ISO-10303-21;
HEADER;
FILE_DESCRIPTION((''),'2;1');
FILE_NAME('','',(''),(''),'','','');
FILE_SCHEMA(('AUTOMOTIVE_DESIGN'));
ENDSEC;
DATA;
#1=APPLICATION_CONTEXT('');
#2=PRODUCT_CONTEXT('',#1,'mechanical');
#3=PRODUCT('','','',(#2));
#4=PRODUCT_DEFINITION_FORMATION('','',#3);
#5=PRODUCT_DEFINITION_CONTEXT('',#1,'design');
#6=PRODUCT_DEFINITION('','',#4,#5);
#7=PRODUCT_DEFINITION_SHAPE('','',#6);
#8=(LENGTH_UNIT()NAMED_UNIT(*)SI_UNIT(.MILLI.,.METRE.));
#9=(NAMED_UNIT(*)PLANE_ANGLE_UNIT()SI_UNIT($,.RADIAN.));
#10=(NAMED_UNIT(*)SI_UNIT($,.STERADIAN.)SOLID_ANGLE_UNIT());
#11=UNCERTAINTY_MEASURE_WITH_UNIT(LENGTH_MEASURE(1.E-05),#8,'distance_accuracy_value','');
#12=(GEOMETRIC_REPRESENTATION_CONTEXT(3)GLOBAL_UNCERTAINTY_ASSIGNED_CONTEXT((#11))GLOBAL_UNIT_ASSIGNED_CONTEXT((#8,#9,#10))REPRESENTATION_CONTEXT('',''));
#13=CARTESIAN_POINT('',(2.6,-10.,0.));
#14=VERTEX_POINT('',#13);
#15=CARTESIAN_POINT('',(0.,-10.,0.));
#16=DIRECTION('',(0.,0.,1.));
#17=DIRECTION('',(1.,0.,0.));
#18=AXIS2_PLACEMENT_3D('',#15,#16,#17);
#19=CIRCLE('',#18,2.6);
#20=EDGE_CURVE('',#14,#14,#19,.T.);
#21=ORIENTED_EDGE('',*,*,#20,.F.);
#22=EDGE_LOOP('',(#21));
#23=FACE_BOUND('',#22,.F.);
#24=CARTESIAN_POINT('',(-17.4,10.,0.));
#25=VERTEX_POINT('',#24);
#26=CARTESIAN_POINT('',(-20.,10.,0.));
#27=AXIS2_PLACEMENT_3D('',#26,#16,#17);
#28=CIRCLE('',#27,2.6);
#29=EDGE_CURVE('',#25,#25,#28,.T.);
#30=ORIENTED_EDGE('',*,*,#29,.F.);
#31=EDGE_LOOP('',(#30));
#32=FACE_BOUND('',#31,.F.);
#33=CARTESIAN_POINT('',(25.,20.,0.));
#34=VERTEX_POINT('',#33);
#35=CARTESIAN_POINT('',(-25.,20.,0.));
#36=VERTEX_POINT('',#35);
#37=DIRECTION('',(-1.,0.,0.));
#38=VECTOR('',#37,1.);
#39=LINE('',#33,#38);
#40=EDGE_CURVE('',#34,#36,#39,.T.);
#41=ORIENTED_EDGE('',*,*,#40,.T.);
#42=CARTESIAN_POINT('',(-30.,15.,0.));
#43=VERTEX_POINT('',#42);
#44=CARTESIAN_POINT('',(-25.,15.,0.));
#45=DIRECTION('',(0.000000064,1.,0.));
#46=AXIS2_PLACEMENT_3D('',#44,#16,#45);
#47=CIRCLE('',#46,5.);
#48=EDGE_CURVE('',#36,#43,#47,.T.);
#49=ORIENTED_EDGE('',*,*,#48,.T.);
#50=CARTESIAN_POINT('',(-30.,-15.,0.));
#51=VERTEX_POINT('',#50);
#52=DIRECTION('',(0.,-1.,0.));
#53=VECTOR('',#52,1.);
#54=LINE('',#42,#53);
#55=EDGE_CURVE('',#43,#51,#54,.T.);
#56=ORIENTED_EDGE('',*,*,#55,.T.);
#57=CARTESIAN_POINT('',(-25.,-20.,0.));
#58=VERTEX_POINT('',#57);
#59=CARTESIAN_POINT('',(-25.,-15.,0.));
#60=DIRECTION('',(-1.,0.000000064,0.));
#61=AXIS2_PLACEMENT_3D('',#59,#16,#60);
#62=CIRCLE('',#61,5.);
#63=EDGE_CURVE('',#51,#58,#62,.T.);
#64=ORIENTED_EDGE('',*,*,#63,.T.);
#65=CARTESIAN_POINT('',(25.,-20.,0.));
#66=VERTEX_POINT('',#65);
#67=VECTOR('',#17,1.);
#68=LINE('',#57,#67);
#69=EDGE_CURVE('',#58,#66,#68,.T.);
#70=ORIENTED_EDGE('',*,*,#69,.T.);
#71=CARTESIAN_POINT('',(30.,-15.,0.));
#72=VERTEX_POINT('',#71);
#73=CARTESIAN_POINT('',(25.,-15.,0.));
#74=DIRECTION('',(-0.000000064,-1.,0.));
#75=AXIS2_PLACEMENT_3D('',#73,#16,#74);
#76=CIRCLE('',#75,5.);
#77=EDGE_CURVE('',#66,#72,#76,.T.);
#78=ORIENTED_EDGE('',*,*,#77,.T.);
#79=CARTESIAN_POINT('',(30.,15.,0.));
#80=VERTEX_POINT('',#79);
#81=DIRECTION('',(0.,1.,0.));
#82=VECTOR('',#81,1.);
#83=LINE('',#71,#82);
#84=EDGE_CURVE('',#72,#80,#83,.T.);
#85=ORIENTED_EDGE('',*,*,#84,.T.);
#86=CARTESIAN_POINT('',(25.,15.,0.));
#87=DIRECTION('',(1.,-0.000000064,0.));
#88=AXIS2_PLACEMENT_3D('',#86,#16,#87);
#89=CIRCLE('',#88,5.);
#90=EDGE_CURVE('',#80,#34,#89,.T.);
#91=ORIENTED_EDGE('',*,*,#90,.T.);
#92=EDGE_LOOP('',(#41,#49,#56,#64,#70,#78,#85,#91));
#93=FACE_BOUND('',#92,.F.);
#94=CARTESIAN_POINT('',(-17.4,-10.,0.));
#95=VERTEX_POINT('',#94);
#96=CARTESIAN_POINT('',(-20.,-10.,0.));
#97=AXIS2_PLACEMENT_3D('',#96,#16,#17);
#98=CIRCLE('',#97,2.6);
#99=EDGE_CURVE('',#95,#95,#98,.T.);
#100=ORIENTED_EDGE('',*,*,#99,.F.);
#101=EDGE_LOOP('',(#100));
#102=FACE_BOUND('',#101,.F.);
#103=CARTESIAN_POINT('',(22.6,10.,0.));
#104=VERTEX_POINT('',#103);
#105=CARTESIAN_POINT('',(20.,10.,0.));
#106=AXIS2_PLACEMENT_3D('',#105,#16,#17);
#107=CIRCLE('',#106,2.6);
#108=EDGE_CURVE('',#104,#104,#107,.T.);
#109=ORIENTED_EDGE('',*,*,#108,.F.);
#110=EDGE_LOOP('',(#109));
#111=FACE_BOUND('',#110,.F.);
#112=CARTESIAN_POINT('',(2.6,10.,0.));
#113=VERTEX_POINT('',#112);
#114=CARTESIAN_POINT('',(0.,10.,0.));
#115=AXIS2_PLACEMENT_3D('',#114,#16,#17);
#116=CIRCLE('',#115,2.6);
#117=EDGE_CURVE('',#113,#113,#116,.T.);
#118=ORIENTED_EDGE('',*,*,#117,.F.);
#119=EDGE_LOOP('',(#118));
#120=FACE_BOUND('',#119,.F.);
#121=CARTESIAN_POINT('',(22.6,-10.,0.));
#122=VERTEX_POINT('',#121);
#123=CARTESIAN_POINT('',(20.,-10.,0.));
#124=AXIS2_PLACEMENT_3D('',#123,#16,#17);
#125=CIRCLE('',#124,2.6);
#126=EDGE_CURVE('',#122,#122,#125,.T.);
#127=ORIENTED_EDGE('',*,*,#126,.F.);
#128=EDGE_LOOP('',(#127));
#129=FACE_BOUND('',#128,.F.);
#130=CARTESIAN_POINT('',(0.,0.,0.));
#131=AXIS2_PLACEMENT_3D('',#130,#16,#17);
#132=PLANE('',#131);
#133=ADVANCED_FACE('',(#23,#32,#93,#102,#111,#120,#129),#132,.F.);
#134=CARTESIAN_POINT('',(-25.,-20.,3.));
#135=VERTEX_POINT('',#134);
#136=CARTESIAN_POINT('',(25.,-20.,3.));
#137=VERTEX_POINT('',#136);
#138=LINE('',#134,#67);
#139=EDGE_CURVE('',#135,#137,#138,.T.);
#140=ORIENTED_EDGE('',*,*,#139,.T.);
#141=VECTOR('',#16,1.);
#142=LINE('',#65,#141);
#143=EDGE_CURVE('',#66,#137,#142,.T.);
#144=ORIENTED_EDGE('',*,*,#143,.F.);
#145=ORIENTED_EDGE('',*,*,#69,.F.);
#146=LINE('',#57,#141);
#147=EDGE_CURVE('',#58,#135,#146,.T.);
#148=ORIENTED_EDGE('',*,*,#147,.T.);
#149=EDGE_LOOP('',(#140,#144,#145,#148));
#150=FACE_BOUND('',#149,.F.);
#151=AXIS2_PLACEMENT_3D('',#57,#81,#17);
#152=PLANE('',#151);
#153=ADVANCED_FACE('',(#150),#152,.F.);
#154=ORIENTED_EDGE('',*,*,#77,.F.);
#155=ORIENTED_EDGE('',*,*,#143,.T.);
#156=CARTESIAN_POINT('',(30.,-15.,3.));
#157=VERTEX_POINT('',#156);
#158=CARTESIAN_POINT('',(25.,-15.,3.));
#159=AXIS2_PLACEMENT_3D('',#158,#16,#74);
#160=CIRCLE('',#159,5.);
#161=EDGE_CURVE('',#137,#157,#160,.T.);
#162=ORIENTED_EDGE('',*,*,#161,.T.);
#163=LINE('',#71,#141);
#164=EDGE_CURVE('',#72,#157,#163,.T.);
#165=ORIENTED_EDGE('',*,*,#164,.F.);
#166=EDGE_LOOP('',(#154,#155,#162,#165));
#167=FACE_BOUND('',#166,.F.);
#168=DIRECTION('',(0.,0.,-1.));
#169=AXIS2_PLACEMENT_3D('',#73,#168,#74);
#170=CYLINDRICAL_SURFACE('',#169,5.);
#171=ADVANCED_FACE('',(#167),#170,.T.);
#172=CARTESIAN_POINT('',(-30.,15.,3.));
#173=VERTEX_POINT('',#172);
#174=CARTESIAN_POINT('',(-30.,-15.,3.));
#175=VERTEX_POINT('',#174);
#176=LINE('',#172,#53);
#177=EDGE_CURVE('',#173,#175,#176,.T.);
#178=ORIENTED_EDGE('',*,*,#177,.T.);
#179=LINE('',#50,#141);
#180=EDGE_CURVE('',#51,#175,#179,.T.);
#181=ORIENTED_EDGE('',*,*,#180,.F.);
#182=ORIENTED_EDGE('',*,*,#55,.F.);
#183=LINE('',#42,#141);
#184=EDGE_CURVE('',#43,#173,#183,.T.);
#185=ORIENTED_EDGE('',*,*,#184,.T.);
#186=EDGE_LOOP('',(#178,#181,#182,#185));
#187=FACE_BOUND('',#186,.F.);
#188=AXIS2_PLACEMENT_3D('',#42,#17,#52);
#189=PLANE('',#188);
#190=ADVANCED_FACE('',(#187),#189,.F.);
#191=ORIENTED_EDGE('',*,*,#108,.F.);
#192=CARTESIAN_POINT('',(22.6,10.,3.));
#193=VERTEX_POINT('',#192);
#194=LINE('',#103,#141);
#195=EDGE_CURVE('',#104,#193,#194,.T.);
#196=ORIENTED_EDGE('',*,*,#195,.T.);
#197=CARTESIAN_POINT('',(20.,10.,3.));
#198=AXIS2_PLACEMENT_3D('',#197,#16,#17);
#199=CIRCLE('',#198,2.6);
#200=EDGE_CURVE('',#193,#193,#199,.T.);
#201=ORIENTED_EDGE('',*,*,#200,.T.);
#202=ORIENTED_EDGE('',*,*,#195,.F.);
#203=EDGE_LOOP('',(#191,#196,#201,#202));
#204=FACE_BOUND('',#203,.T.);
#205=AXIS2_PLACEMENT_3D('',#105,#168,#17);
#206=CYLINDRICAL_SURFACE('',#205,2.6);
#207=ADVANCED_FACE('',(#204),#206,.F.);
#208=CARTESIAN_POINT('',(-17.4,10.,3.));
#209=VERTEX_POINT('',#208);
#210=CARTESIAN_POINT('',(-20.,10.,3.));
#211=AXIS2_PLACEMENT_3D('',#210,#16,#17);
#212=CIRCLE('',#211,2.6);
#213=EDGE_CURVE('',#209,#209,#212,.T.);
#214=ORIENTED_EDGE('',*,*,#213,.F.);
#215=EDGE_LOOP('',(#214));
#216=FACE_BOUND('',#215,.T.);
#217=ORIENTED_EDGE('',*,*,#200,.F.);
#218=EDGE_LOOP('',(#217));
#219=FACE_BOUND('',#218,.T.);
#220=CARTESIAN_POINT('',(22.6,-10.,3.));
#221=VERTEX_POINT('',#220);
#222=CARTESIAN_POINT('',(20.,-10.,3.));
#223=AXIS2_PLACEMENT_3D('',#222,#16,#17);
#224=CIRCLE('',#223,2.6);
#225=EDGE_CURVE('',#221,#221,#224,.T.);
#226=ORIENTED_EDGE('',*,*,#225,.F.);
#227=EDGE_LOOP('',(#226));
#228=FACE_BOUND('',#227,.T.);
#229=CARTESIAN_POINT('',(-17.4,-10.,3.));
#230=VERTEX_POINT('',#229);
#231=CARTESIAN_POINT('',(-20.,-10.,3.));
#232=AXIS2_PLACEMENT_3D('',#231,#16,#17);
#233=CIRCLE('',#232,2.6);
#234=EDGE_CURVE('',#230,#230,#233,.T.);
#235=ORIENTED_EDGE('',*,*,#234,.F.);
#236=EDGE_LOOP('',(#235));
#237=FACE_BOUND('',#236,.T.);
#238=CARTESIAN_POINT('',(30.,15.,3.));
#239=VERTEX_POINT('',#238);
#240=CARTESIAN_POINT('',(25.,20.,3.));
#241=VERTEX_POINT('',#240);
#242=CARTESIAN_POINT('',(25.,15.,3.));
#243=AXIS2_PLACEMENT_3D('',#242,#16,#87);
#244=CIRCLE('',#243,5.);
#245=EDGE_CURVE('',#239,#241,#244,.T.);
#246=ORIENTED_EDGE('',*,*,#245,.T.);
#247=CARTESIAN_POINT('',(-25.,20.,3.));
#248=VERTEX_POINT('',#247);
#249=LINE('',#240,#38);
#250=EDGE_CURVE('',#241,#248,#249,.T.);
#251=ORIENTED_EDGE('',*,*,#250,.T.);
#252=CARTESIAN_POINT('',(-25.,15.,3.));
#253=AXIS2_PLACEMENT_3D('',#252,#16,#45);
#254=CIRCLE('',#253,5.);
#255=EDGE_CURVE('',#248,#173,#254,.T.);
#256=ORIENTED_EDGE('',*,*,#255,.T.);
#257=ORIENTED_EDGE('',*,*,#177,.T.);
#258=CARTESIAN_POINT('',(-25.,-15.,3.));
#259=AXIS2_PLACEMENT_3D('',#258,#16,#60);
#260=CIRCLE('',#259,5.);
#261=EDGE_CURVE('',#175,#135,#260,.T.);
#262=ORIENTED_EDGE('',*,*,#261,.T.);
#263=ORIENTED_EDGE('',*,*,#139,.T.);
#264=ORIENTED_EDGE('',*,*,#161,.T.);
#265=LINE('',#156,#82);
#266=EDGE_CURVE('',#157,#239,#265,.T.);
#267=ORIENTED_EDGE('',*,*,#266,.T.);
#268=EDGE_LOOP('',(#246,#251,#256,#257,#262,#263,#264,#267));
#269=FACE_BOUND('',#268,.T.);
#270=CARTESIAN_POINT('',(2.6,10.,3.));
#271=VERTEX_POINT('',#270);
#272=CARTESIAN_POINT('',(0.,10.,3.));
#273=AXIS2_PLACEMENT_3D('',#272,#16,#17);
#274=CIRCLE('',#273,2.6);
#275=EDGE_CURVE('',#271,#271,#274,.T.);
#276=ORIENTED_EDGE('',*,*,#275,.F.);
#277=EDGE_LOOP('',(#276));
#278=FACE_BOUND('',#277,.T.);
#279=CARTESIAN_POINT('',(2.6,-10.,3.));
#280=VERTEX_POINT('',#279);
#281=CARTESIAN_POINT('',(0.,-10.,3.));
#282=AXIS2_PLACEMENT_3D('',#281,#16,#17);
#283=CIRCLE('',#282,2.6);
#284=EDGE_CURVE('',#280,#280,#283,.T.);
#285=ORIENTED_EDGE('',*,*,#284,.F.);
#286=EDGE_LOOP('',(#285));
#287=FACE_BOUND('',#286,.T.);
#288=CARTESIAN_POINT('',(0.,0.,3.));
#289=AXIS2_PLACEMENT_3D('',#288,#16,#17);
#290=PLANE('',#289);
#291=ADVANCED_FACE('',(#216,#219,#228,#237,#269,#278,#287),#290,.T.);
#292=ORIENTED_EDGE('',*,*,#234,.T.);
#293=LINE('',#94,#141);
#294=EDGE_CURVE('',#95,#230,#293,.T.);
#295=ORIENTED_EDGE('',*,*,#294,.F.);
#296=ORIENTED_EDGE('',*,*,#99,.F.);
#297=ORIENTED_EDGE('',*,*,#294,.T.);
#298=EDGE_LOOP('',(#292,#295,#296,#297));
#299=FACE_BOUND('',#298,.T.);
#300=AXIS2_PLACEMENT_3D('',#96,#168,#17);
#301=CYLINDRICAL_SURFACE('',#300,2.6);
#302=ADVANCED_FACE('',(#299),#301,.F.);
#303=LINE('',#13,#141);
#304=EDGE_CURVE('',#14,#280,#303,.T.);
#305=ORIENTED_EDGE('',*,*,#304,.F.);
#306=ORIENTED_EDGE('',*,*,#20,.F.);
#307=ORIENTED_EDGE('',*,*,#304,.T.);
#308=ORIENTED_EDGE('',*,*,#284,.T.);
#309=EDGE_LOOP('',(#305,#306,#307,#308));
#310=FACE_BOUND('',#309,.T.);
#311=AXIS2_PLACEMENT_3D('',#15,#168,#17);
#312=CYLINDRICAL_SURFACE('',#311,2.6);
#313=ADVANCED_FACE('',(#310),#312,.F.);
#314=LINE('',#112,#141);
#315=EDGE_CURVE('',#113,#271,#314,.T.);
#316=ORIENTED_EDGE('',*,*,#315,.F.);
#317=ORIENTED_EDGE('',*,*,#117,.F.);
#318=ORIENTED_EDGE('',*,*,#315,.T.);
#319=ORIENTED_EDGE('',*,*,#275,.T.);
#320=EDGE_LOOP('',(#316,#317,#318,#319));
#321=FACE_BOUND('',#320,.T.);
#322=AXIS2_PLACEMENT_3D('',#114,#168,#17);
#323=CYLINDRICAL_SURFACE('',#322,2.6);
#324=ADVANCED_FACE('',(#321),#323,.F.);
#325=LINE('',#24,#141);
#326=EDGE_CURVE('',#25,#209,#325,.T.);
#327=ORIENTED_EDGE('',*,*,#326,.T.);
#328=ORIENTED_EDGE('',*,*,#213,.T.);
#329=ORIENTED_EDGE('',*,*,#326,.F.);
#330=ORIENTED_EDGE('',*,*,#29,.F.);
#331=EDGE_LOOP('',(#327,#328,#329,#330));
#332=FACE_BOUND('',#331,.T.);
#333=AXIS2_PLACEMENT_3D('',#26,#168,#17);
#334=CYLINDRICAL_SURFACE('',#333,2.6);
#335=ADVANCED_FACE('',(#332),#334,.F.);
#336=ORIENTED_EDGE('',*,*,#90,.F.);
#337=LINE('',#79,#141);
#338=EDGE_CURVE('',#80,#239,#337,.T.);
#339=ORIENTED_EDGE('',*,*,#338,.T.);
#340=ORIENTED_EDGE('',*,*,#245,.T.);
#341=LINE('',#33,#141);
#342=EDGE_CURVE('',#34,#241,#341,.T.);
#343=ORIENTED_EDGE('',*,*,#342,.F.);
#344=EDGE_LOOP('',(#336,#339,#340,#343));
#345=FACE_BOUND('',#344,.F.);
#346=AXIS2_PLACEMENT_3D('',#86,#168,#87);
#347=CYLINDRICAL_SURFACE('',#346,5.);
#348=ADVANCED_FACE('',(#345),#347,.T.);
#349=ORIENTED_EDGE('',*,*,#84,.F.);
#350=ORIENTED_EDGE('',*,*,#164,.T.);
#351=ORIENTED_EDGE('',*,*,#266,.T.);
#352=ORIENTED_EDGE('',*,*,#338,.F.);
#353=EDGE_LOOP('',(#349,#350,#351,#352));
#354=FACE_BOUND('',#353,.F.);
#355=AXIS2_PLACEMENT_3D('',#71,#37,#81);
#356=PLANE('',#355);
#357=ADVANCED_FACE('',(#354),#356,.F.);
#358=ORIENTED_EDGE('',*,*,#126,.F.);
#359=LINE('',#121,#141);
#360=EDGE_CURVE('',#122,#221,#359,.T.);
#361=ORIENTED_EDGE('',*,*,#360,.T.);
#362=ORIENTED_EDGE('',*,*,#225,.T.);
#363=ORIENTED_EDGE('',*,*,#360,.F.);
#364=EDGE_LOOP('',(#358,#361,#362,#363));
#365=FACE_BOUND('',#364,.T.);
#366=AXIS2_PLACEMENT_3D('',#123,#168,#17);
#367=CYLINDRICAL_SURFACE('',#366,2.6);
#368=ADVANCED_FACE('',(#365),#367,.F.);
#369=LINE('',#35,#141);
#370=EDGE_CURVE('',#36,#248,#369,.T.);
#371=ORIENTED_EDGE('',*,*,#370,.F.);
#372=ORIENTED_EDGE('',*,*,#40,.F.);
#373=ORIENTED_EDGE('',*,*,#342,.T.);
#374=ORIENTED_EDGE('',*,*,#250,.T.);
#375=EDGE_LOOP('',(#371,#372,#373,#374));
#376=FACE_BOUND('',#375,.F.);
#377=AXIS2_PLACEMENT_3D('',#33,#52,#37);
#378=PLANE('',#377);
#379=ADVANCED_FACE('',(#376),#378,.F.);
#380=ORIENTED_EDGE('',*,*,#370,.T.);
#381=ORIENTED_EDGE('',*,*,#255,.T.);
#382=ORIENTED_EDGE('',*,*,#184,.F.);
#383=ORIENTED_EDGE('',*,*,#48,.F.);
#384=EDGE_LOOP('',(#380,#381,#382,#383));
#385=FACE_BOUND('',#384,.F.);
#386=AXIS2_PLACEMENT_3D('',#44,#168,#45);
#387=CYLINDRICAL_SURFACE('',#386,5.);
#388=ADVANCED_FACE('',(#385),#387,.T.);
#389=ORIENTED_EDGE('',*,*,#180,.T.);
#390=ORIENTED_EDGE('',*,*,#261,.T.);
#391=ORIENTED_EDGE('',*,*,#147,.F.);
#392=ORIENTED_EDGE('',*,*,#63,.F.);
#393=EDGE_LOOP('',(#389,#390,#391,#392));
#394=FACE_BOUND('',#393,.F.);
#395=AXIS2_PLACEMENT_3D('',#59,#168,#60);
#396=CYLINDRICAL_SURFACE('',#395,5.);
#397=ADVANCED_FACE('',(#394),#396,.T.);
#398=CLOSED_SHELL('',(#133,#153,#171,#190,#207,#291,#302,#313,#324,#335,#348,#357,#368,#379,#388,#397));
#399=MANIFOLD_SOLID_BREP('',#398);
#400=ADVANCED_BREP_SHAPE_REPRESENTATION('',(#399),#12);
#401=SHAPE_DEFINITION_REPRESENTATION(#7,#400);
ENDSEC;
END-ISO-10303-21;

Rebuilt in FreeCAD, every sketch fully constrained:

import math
import FreeCAD as App
import Part
import Sketcher

doc = App.newDocument("Part")
body = doc.addObject("PartDesign::Body", "Body")

# Sketch on XY plane
sketch1 = doc.addObject("Sketcher::SketchObject", "Sketch")
body.addObject(sketch1)
sketch1.AttachmentSupport = (doc.XY_Plane, [""])
sketch1.MapMode = "FlatFace"
sketch1.addGeometry([
    Part.LineSegment(App.Vector(-25, -20, 0), App.Vector(25, -20, 0)),  # 0
    Part.ArcOfCircle(Part.Circle(App.Vector(25, -15, 0), App.Vector(0, 0, 1), 5), math.radians(-90), math.radians(0)),  # 1
    Part.LineSegment(App.Vector(30, -15, 0), App.Vector(30, 15, 0)),  # 2
    Part.ArcOfCircle(Part.Circle(App.Vector(25, 15, 0), App.Vector(0, 0, 1), 5), math.radians(0), math.radians(90)),  # 3
    Part.LineSegment(App.Vector(25, 20, 0), App.Vector(-25, 20, 0)),  # 4
    Part.ArcOfCircle(Part.Circle(App.Vector(-25, 15, 0), App.Vector(0, 0, 1), 5), math.radians(90), math.radians(180)),  # 5
    Part.LineSegment(App.Vector(-30, 15, 0), App.Vector(-30, -15, 0)),  # 6
    Part.ArcOfCircle(Part.Circle(App.Vector(-25, -15, 0), App.Vector(0, 0, 1), 5), math.radians(180), math.radians(270)),  # 7
    Part.Circle(App.Vector(-20, -10, 0), App.Vector(0, 0, 1), 2.6),  # 8
    Part.Circle(App.Vector(0, -10, 0), App.Vector(0, 0, 1), 2.6),  # 9
    Part.Circle(App.Vector(20, -10, 0), App.Vector(0, 0, 1), 2.6),  # 10
    Part.Circle(App.Vector(-20, 10, 0), App.Vector(0, 0, 1), 2.6),  # 11
    Part.Circle(App.Vector(0, 10, 0), App.Vector(0, 0, 1), 2.6),  # 12
    Part.Circle(App.Vector(20, 10, 0), App.Vector(0, 0, 1), 2.6),  # 13
], False)
sketch1.addConstraint([
    Sketcher.Constraint("Tangent", 0, 2, 1, 1),
    Sketcher.Constraint("Tangent", 1, 2, 2, 1),
    Sketcher.Constraint("Tangent", 2, 2, 3, 1),
    Sketcher.Constraint("Tangent", 3, 2, 4, 1),
    Sketcher.Constraint("Tangent", 4, 2, 5, 1),
    Sketcher.Constraint("Tangent", 5, 2, 6, 1),
    Sketcher.Constraint("Tangent", 6, 2, 7, 1),
    Sketcher.Constraint("Tangent", 7, 2, 0, 1),
    Sketcher.Constraint("Horizontal", 0),
    Sketcher.Constraint("Vertical", 2),
    Sketcher.Constraint("Horizontal", 4),
    Sketcher.Constraint("Vertical", 6),
    Sketcher.Constraint("Equal", 1, 3),
    Sketcher.Constraint("Equal", 3, 5),
    Sketcher.Constraint("Equal", 5, 7),
    Sketcher.Constraint("Equal", 8, 9),
    Sketcher.Constraint("Equal", 9, 10),
    Sketcher.Constraint("Equal", 10, 11),
    Sketcher.Constraint("Equal", 11, 12),
    Sketcher.Constraint("Equal", 12, 13),
    Sketcher.Constraint("Symmetric", 1, 3, 5, 3, -1, 1),
    Sketcher.Constraint("Symmetric", 10, 3, 11, 3, -1, 1),
    Sketcher.Constraint("Symmetric", 9, 3, 12, 3, -1, 1),
    Sketcher.Constraint("Symmetric", 8, 3, 13, 3, -1, 1),
    Sketcher.Constraint("Symmetric", 8, 3, 10, 3, -2),
    Sketcher.Constraint("PointOnObject", 9, 3, -2),
    Sketcher.Constraint("Horizontal", 8, 3, 9, 3),
    Sketcher.Constraint("Radius", 1, 5.0),
    Sketcher.Constraint("Diameter", 8, 5.2),
    Sketcher.Constraint("DistanceX", 0, 1, 0, 2, 50.0),
    Sketcher.Constraint("DistanceY", 2, 1, 2, 2, 30.0),
    Sketcher.Constraint("DistanceX", 8, 3, -1, 1, 20.0),
    Sketcher.Constraint("DistanceY", 8, 3, -1, 1, 10.0),
])
pad1 = doc.addObject("PartDesign::Pad", "Pad")
body.addObject(pad1)
pad1.Profile = sketch1
pad1.Length = 3

doc.recompute()
